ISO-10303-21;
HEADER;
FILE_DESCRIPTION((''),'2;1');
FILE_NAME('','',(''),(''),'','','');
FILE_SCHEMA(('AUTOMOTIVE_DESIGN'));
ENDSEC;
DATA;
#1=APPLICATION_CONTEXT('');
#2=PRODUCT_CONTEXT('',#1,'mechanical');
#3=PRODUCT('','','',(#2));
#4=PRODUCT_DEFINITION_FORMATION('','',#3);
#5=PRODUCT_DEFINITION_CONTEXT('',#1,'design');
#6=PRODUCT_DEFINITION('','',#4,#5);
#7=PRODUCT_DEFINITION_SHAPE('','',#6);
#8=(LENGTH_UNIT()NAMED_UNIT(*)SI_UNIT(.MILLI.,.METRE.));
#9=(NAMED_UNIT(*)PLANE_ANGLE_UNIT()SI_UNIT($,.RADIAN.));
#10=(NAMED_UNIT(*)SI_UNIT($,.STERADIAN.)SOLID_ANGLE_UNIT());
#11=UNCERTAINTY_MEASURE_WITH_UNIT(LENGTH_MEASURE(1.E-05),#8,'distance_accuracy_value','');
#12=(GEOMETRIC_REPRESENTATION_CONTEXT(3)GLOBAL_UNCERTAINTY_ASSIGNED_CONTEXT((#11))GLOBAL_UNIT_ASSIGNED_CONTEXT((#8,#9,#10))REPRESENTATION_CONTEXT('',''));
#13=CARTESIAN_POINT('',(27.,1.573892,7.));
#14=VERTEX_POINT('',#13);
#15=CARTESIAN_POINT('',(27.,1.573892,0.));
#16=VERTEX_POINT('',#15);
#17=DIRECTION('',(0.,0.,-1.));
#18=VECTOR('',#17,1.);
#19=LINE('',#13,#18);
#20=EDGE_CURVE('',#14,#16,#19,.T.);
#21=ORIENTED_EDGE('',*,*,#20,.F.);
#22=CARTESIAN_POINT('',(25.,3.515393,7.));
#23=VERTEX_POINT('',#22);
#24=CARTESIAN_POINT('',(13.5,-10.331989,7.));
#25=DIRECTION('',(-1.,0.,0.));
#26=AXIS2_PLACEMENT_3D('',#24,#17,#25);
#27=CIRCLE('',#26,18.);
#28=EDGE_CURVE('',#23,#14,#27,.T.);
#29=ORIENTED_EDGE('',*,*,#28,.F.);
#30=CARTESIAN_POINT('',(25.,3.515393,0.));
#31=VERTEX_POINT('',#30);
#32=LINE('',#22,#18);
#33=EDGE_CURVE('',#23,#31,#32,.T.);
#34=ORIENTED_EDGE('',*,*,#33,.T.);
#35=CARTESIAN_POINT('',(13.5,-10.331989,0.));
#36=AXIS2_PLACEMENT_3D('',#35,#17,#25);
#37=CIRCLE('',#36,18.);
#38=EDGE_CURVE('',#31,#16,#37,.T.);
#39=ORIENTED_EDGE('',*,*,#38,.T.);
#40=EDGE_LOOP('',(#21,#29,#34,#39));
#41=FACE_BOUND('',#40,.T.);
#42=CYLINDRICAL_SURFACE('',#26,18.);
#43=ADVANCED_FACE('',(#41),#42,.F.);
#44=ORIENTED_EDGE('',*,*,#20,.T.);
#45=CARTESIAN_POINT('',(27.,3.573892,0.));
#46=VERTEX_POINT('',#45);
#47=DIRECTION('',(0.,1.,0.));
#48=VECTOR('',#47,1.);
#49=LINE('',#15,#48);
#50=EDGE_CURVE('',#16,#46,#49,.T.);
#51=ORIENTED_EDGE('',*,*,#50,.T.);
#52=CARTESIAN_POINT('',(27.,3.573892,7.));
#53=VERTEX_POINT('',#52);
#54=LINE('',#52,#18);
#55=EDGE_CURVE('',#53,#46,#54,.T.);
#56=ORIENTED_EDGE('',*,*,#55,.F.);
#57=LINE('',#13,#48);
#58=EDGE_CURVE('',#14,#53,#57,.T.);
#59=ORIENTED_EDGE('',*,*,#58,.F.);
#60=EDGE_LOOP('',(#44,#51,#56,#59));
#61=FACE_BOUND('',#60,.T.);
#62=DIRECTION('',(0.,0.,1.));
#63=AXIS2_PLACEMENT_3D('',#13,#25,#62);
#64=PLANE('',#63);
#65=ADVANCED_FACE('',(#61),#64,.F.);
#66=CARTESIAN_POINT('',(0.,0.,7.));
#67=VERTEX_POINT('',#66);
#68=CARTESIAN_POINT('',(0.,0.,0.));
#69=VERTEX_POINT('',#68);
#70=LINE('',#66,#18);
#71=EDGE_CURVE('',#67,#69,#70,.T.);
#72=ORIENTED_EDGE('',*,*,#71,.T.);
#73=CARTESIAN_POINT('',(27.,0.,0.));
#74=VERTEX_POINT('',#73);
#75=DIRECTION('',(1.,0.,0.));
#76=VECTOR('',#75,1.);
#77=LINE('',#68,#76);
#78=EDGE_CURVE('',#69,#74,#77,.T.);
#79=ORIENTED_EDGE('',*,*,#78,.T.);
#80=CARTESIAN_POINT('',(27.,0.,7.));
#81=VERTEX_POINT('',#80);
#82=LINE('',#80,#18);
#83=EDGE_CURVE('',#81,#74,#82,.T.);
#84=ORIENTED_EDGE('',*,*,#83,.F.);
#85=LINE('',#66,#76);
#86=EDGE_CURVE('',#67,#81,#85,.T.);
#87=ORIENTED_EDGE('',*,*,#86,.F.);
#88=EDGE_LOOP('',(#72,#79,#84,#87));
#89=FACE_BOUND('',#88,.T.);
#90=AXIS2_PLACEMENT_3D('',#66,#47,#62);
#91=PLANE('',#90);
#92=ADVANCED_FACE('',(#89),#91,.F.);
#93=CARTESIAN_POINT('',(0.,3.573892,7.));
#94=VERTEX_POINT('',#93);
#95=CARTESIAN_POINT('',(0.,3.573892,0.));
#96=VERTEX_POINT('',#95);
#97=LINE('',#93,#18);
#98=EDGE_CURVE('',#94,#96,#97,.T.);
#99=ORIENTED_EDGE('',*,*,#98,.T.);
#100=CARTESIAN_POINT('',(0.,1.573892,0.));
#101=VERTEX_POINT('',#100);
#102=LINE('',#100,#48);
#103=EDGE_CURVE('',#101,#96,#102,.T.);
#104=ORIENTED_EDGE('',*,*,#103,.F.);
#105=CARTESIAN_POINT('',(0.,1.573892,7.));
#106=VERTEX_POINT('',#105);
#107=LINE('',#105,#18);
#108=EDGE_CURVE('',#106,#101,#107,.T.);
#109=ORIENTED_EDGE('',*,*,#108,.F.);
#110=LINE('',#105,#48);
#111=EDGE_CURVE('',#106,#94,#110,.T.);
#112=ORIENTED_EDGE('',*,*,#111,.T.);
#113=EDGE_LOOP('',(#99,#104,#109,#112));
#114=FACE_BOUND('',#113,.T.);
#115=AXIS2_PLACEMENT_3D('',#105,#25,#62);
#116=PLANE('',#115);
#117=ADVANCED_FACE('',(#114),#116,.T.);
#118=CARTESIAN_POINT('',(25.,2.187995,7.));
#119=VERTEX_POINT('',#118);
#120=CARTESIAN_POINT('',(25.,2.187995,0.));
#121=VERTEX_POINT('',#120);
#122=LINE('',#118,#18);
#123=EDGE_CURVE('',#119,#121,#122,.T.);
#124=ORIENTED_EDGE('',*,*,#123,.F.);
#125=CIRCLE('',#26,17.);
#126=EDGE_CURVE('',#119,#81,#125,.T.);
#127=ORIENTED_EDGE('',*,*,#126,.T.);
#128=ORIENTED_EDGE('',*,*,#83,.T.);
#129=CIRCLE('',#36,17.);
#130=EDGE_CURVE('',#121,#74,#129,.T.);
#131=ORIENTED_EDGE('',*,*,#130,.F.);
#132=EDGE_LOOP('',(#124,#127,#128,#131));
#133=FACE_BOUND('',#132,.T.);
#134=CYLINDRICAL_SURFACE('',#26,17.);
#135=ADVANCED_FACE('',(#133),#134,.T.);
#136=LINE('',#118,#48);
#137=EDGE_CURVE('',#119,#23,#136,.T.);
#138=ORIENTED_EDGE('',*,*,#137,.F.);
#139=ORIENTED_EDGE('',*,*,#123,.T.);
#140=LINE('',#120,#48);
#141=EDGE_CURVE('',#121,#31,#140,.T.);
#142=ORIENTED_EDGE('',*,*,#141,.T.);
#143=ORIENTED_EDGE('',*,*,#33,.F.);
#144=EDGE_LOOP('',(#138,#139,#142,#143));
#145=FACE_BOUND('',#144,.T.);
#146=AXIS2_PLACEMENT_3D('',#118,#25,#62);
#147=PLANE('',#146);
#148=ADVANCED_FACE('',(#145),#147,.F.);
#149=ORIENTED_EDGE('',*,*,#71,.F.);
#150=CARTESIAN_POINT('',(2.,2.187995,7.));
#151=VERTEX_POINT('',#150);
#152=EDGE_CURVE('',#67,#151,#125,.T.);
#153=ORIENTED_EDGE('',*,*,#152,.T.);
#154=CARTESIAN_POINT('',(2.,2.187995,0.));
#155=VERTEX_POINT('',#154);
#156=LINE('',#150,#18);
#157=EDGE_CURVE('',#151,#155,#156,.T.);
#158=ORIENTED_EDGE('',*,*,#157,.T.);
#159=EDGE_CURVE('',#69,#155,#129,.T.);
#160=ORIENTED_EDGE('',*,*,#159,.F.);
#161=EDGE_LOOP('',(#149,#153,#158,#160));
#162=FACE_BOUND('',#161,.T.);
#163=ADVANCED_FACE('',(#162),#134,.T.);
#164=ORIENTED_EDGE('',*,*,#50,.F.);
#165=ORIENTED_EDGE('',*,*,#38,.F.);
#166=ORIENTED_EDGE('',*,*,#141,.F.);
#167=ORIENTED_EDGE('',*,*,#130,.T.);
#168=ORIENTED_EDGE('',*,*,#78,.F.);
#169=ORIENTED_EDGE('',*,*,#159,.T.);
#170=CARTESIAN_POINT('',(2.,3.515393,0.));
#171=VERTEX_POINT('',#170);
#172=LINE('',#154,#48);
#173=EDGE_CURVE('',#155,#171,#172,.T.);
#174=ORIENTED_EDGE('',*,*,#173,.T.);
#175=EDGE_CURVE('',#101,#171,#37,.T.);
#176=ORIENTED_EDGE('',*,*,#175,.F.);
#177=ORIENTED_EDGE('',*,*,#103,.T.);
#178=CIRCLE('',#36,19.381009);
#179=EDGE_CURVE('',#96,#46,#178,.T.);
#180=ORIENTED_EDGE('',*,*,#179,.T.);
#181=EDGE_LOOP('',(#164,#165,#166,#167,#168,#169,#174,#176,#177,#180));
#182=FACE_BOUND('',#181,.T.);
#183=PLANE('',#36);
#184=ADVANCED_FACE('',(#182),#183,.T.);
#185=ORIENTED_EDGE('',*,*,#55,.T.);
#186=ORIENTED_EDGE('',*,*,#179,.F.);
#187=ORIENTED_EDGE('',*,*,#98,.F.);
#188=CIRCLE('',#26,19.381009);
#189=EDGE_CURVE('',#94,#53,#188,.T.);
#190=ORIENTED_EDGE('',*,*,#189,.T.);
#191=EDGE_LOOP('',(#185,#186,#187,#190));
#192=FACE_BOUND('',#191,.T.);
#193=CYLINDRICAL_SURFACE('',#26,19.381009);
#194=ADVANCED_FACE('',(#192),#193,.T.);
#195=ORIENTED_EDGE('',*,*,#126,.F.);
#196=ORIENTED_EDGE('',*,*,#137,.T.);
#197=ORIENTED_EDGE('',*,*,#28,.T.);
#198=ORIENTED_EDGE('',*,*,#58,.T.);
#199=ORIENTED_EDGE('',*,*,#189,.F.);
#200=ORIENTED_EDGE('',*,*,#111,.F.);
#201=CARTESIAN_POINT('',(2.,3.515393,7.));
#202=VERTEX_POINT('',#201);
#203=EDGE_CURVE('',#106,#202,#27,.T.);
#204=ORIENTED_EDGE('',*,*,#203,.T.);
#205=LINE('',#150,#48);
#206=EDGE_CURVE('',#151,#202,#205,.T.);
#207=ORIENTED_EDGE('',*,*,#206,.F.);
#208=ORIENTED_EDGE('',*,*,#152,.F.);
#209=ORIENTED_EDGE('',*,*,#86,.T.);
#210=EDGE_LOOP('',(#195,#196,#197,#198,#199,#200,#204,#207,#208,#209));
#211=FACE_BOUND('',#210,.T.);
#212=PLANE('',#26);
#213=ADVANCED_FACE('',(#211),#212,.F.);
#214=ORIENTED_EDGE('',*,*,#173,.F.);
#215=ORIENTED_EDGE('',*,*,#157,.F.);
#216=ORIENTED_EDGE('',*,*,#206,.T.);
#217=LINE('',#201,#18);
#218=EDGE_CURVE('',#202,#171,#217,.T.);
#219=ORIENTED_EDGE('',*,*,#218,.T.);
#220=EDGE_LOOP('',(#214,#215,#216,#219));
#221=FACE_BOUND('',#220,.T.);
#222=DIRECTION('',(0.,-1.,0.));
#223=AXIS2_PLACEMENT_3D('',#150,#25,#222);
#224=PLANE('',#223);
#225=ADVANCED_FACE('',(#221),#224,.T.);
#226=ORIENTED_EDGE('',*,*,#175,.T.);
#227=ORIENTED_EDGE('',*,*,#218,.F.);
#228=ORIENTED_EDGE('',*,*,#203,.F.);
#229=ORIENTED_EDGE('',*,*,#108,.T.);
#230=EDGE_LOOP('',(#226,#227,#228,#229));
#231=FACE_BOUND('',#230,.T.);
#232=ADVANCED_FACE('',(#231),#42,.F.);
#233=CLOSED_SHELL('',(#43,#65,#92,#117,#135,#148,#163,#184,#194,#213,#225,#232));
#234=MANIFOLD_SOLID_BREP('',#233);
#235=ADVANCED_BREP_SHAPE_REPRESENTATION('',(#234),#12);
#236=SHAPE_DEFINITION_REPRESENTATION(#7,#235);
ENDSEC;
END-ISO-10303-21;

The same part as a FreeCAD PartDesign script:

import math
import FreeCAD as App
import Part
import Sketcher
from FreeCAD import Vector
Q = App.Units.Quantity

doc = App.newDocument("Part")
body = doc.addObject("PartDesign::Body", "Body")

# Sketch on XY plane
sketch1 = doc.addObject("Sketcher::SketchObject", "Sketch")
body.addObject(sketch1)
sketch1.AttachmentSupport = (doc.XY_Plane, [""])
sketch1.MapMode = "FlatFace"
sketch1.addGeometry([
    Part.LineSegment(Vector(0, 0, 0), Vector(27, 0, 0)),  # 0
    Part.ArcOfCircle(Part.Circle(Vector(13.5, -10.331989, 0), Vector(0, 0, 1), 17), math.radians(37.428006), math.radians(47.431546)),  # 1
    Part.LineSegment(Vector(25, 2.187995, 0), Vector(25, 3.515393, 0)),  # 2
    Part.ArcOfCircle(Part.Circle(Vector(13.5, -10.331989, 0), Vector(0, 0, 1), 18), math.radians(41.409622), math.radians(50.290983)),  # 3
    Part.LineSegment(Vector(27, 1.573892, 0), Vector(27, 3.573892, 0)),  # 4
    Part.ArcOfCircle(Part.Circle(Vector(13.5, -10.331989, 0), Vector(0, 0, 1), 19.381009), math.radians(45.848488), math.radians(134.151512)),  # 5
    Part.LineSegment(Vector(0, 3.573892, 0), Vector(0, 1.573892, 0)),  # 6
    Part.ArcOfCircle(Part.Circle(Vector(13.5, -10.331989, 0), Vector(0, 0, 1), 18), math.radians(129.709017), math.radians(138.590378)),  # 7
    Part.LineSegment(Vector(2, 3.515393, 0), Vector(2, 2.187995, 0)),  # 8
    Part.ArcOfCircle(Part.Circle(Vector(13.5, -10.331989, 0), Vector(0, 0, 1), 17), math.radians(132.568454), math.radians(142.571994)),  # 9
], False)
sketch1.addConstraint([
    Sketcher.Constraint("Coincident", 0, 2, 1, 1),
    Sketcher.Constraint("Coincident", 1, 2, 2, 1),
    Sketcher.Constraint("Coincident", 2, 2, 3, 2),
    Sketcher.Constraint("Coincident", 3, 1, 4, 1),
    Sketcher.Constraint("Coincident", 4, 2, 5, 1),
    Sketcher.Constraint("Coincident", 5, 2, 6, 1),
    Sketcher.Constraint("Coincident", 6, 2, 7, 2),
    Sketcher.Constraint("Coincident", 7, 1, 8, 1),
    Sketcher.Constraint("Coincident", 8, 2, 9, 1),
    Sketcher.Constraint("Coincident", 9, 2, 0, 1),
    Sketcher.Constraint("Horizontal", 0),
    Sketcher.Constraint("Vertical", 2),
    Sketcher.Constraint("Vertical", 4),
    Sketcher.Constraint("Vertical", 6),
    Sketcher.Constraint("Vertical", 8),
    Sketcher.Constraint("Coincident", 9, 2, -1, 1),
    Sketcher.Constraint("Coincident", 3, 3, 1, 3),
    Sketcher.Constraint("Coincident", 5, 3, 1, 3),
    Sketcher.Constraint("Coincident", 7, 3, 1, 3),
    Sketcher.Constraint("Coincident", 9, 3, 1, 3),
    Sketcher.Constraint("Equal", 3, 7),
    Sketcher.Constraint("Equal", 1, 9),
    Sketcher.Constraint("PointOnObject", 5, 2, -2),
    Sketcher.Constraint("Horizontal", 4, 2, 5, 2),
    Sketcher.Constraint("Horizontal", 2, 2, 7, 1),
    Sketcher.Constraint("Radius", 1, Q("17 mm")),
    Sketcher.Constraint("Radius", 3, Q("18 mm")),
    Sketcher.Constraint("DistanceX", 0, 1, 0, 2, Q("27 mm")),
    Sketcher.Constraint("DistanceY", 4, 1, 4, 2, Q("2 mm")),
    Sketcher.Constraint("DistanceX", -1, 1, 1, 2, Q("25 mm")),
])
pad1 = doc.addObject("PartDesign::Pad", "Pad")
body.addObject(pad1)
pad1.Profile = sketch1
pad1.Length = 7

doc.recompute()
